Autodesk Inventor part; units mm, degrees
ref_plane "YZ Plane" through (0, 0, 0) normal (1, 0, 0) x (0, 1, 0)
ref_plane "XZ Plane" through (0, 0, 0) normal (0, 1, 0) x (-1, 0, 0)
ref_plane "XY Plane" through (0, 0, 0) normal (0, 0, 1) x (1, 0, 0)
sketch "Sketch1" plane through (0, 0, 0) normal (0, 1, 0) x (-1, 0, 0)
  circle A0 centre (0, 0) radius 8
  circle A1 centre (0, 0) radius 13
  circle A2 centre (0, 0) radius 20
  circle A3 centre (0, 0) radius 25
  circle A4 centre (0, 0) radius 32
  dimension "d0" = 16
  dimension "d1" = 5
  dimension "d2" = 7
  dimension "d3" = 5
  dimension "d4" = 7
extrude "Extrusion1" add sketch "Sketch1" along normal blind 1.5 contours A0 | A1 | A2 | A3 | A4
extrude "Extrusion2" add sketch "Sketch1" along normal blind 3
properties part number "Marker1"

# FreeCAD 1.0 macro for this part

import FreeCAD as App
import Part
import Sketcher
Q = App.Units.Quantity

doc = App.newDocument("Part")
params = doc.addObject("Spreadsheet::Sheet", "Params")
for row, (alias, value) in enumerate([
    ("sketch1_diameter", "64 mm"),
    ("pad1_length", "1.5 mm"),
    ("sketch2_diameter", "16 mm"),
    ("sketch2_diameter2", "40 mm"),
    ("sketch2_diameter3", "26 mm"),
    ("sketch2_diameter4", "64 mm"),
    ("sketch2_diameter5", "50 mm"),
    ("pad2_length", "3 mm"),
], start=1):
    params.set(f"A{row}", alias)
    params.set(f"B{row}", "=" + value)
    params.setAlias(f"B{row}", alias)

body = doc.addObject("PartDesign::Body", "Body")

# Sketch on XZ plane
sketch1 = body.newObject("Sketcher::SketchObject", "Sketch")
sketch1.AttachmentSupport = (doc.getObject("XZ_Plane"), [""])
sketch1.MapMode = "FlatFace"
sketch1.addGeometry(Part.Circle(App.Vector(0, 0, 0), App.Vector(0, 0, 1), 32), False)
sketch1.addConstraint(Sketcher.Constraint("Coincident", 0, 3, -1, 1))
sketch1.addConstraint(Sketcher.Constraint("Diameter", 0, Q("64 mm")))
sketch1.setExpression("Constraints[1]", "Params.sketch1_diameter")
pad1 = body.newObject("PartDesign::Pad", "Pad")
pad1.Profile = sketch1
pad1.setExpression("Length", "Params.pad1_length")
pad1.Reversed = True

# Sketch on XZ plane
sketch2 = body.newObject("Sketcher::SketchObject", "Sketch001")
sketch2.AttachmentSupport = (doc.getObject("XZ_Plane"), [""])
sketch2.MapMode = "FlatFace"
sketch2.addGeometry(Part.Circle(App.Vector(0, 0, 0), App.Vector(0, 0, 1), 8), False)
sketch2.addGeometry(Part.Circle(App.Vector(0, 0, 0), App.Vector(0, 0, 1), 20), False)
sketch2.addGeometry(Part.Circle(App.Vector(0, 0, 0), App.Vector(0, 0, 1), 13), False)
sketch2.addGeometry(Part.Circle(App.Vector(0, 0, 0), App.Vector(0, 0, 1), 32), False)
sketch2.addGeometry(Part.Circle(App.Vector(0, 0, 0), App.Vector(0, 0, 1), 25), False)
sketch2.addConstraint(Sketcher.Constraint("Coincident", 0, 3, -1, 1))
sketch2.addConstraint(Sketcher.Constraint("Coincident", 1, 3, -1, 1))
sketch2.addConstraint(Sketcher.Constraint("Coincident", 2, 3, -1, 1))
sketch2.addConstraint(Sketcher.Constraint("Coincident", 3, 3, -1, 1))
sketch2.addConstraint(Sketcher.Constraint("Coincident", 4, 3, -1, 1))
sketch2.addConstraint(Sketcher.Constraint("Diameter", 0, Q("16 mm")))
sketch2.addConstraint(Sketcher.Constraint("Diameter", 1, Q("40 mm")))
sketch2.addConstraint(Sketcher.Constraint("Diameter", 2, Q("26 mm")))
sketch2.addConstraint(Sketcher.Constraint("Diameter", 3, Q("64 mm")))
sketch2.addConstraint(Sketcher.Constraint("Diameter", 4, Q("50 mm")))
sketch2.setExpression("Constraints[5]", "Params.sketch2_diameter")
sketch2.setExpression("Constraints[6]", "Params.sketch2_diameter2")
sketch2.setExpression("Constraints[7]", "Params.sketch2_diameter3")
sketch2.setExpression("Constraints[8]", "Params.sketch2_diameter4")
sketch2.setExpression("Constraints[9]", "Params.sketch2_diameter5")
pad2 = body.newObject("PartDesign::Pad", "Pad001")
pad2.Profile = sketch2
pad2.setExpression("Length", "Params.pad2_length")
pad2.Reversed = True

doc.recompute()
